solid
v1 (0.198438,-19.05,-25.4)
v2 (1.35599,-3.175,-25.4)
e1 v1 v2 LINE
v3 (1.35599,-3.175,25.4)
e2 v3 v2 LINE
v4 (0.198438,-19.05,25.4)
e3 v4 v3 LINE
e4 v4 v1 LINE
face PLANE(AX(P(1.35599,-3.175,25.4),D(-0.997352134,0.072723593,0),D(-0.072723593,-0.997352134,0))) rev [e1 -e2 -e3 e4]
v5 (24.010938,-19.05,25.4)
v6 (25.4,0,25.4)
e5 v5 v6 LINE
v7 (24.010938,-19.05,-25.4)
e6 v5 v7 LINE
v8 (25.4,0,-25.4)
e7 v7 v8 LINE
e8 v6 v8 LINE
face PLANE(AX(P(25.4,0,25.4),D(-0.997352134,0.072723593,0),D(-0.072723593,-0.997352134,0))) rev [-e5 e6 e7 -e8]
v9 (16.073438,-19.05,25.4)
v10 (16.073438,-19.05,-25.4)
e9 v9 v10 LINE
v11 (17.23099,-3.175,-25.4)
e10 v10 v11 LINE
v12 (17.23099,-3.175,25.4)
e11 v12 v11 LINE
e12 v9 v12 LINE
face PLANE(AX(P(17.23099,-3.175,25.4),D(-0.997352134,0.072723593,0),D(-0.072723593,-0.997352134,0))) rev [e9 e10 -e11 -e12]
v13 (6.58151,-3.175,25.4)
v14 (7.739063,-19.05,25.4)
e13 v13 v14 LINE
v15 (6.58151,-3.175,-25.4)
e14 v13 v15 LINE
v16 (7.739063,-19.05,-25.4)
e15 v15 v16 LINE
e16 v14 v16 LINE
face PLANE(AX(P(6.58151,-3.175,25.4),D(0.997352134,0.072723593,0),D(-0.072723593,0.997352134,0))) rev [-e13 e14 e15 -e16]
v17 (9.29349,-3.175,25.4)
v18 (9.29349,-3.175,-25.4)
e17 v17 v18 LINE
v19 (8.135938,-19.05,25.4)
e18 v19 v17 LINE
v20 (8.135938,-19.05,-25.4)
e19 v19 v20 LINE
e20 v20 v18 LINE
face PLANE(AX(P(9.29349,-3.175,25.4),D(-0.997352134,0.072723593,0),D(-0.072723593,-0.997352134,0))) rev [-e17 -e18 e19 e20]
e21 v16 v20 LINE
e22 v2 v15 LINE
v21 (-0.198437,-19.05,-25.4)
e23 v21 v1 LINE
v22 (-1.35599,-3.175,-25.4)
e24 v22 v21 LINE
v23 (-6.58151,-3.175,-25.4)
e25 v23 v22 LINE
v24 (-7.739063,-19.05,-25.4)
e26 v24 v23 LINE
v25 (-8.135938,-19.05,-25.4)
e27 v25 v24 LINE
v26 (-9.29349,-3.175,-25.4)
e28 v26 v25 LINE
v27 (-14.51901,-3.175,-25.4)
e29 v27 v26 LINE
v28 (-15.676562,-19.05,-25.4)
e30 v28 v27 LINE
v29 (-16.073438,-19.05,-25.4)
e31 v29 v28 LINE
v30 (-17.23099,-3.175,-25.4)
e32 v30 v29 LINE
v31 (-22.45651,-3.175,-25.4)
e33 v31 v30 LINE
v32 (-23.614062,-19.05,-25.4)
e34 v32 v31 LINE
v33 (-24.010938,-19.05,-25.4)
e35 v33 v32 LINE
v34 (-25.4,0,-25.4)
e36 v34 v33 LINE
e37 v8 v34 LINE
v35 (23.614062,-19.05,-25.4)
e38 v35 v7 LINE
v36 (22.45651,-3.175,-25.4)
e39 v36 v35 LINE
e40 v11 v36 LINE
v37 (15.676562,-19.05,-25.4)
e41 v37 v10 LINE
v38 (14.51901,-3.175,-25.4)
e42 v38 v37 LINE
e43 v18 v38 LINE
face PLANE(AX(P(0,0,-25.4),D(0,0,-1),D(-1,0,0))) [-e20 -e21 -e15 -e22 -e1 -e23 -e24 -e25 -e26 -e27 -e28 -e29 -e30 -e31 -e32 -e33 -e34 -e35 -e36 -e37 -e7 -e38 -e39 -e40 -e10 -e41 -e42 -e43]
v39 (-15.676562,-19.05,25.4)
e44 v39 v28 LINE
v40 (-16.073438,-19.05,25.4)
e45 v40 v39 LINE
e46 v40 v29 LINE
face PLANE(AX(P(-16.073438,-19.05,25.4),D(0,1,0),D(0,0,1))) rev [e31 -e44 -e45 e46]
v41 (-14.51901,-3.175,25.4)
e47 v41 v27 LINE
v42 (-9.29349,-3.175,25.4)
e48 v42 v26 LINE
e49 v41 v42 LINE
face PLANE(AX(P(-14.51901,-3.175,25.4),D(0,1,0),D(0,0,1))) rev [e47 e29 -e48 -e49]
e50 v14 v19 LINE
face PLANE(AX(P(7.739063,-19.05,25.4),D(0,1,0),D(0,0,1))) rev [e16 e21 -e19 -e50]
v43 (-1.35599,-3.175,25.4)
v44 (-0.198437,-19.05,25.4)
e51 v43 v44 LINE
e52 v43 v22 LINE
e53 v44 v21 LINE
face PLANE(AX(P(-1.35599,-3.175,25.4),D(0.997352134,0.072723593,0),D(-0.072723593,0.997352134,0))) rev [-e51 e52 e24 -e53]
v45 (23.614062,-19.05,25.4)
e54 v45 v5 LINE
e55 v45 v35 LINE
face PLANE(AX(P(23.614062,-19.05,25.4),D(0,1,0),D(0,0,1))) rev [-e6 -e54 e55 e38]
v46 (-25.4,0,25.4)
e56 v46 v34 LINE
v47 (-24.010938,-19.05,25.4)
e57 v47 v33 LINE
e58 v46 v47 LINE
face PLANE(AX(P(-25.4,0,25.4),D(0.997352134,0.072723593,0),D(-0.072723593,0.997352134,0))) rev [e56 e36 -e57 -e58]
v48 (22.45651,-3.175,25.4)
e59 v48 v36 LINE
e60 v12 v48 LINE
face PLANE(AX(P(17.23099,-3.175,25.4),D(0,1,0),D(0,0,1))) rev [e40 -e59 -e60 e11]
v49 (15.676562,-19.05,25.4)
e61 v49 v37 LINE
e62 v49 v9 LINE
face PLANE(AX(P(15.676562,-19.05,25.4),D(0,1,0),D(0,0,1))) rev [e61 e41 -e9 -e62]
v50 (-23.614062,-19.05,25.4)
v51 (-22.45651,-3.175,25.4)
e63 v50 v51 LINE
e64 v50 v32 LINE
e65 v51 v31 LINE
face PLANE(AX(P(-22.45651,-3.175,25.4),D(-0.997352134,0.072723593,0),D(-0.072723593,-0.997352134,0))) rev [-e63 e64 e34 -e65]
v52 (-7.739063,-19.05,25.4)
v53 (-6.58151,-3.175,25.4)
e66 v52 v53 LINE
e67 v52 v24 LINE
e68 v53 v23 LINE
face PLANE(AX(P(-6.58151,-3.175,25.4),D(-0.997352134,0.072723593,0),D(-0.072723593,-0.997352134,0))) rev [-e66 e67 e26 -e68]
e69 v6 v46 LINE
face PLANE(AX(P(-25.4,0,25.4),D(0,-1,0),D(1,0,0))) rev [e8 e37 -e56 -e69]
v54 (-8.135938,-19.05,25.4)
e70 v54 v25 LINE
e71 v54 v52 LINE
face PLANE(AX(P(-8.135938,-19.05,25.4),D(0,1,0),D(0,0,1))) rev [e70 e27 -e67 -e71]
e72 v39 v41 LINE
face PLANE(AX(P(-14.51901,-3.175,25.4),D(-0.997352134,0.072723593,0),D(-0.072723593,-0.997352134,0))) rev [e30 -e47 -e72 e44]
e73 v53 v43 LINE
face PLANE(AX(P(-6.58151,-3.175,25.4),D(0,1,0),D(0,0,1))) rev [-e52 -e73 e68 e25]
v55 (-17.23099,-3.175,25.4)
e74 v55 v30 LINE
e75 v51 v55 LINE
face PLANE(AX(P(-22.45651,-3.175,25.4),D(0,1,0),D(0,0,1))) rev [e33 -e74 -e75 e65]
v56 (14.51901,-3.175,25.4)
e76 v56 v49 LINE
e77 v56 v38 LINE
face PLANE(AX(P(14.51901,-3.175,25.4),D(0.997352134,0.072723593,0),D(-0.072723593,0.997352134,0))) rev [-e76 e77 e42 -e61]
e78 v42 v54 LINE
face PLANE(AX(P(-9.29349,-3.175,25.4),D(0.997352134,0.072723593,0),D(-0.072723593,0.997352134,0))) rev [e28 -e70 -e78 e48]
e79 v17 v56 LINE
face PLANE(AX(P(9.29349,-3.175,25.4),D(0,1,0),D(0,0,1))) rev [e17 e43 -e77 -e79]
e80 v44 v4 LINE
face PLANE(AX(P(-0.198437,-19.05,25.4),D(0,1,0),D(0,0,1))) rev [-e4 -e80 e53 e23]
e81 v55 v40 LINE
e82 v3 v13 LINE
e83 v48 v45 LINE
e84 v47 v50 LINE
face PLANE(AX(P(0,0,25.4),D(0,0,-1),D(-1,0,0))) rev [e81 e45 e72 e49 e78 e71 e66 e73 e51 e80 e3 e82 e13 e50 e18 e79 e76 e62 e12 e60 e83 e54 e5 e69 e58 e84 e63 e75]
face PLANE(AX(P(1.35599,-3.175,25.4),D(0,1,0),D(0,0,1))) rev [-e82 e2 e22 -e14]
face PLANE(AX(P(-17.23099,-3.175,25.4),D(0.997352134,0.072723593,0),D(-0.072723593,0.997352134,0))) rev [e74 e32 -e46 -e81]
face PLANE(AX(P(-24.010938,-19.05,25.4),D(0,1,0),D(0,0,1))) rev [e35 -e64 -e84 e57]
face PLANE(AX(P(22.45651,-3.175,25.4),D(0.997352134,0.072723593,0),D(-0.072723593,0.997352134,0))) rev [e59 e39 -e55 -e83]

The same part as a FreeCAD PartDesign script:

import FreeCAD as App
import Part
import Sketcher
Q = App.Units.Quantity

doc = App.newDocument("Part")
body = doc.addObject("PartDesign::Body", "Body")

# Sketch on XY plane
sketch1 = doc.addObject("Sketcher::SketchObject", "Sketch")
body.addObject(sketch1)
sketch1.AttachmentSupport = (doc.XY_Plane, [""])
sketch1.MapMode = "FlatFace"
sketch1.addGeometry([
    Part.LineSegment(App.Vector(-25.4, 0, 0), App.Vector(-24.01, -19.05, 0)),  # 0
    Part.LineSegment(App.Vector(-24.01, -19.05, 0), App.Vector(-23.61, -19.05, 0)),  # 1
    Part.LineSegment(App.Vector(-23.61, -19.05, 0), App.Vector(-22.46, -3.17, 0)),  # 2
    Part.LineSegment(App.Vector(-22.46, -3.17, 0), App.Vector(-17.23, -3.17, 0)),  # 3
    Part.LineSegment(App.Vector(-17.23, -3.17, 0), App.Vector(-16.07, -19.05, 0)),  # 4
    Part.LineSegment(App.Vector(-16.07, -19.05, 0), App.Vector(-15.68, -19.05, 0)),  # 5
    Part.LineSegment(App.Vector(-15.68, -19.05, 0), App.Vector(-14.52, -3.17, 0)),  # 6
    Part.LineSegment(App.Vector(-14.52, -3.17, 0), App.Vector(-9.29, -3.17, 0)),  # 7
    Part.LineSegment(App.Vector(-9.29, -3.17, 0), App.Vector(-8.14, -19.05, 0)),  # 8
    Part.LineSegment(App.Vector(-8.14, -19.05, 0), App.Vector(-7.74, -19.05, 0)),  # 9
    Part.LineSegment(App.Vector(-7.74, -19.05, 0), App.Vector(-6.58, -3.17, 0)),  # 10
    Part.LineSegment(App.Vector(-6.58, -3.17, 0), App.Vector(-1.36, -3.17, 0)),  # 11
    Part.LineSegment(App.Vector(-1.36, -3.17, 0), App.Vector(-0.2, -19.05, 0)),  # 12
    Part.LineSegment(App.Vector(-0.2, -19.05, 0), App.Vector(0.2, -19.05, 0)),  # 13
    Part.LineSegment(App.Vector(0.2, -19.05, 0), App.Vector(1.36, -3.17, 0)),  # 14
    Part.LineSegment(App.Vector(1.36, -3.17, 0), App.Vector(6.58, -3.17, 0)),  # 15
    Part.LineSegment(App.Vector(6.58, -3.17, 0), App.Vector(7.74, -19.05, 0)),  # 16
    Part.LineSegment(App.Vector(7.74, -19.05, 0), App.Vector(8.14, -19.05, 0)),  # 17
    Part.LineSegment(App.Vector(8.14, -19.05, 0), App.Vector(9.29, -3.17, 0)),  # 18
    Part.LineSegment(App.Vector(9.29, -3.17, 0), App.Vector(14.52, -3.17, 0)),  # 19
    Part.LineSegment(App.Vector(14.52, -3.17, 0), App.Vector(15.68, -19.05, 0)),  # 20
    Part.LineSegment(App.Vector(15.68, -19.05, 0), App.Vector(16.07, -19.05, 0)),  # 21
    Part.LineSegment(App.Vector(16.07, -19.05, 0), App.Vector(17.23, -3.17, 0)),  # 22
    Part.LineSegment(App.Vector(17.23, -3.17, 0), App.Vector(22.46, -3.17, 0)),  # 23
    Part.LineSegment(App.Vector(22.46, -3.17, 0), App.Vector(23.61, -19.05, 0)),  # 24
    Part.LineSegment(App.Vector(23.61, -19.05, 0), App.Vector(24.01, -19.05, 0)),  # 25
    Part.LineSegment(App.Vector(24.01, -19.05, 0), App.Vector(25.4, 0, 0)),  # 26
    Part.LineSegment(App.Vector(25.4, 0, 0), App.Vector(-25.4, 0, 0)),  # 27
], False)
sketch1.addConstraint([
    Sketcher.Constraint("Coincident", 0, 2, 1, 1),
    Sketcher.Constraint("Coincident", 1, 2, 2, 1),
    Sketcher.Constraint("Coincident", 2, 2, 3, 1),
    Sketcher.Constraint("Coincident", 3, 2, 4, 1),
    Sketcher.Constraint("Coincident", 4, 2, 5, 1),
    Sketcher.Constraint("Coincident", 5, 2, 6, 1),
    Sketcher.Constraint("Coincident", 6, 2, 7, 1),
    Sketcher.Constraint("Coincident", 7, 2, 8, 1),
    Sketcher.Constraint("Coincident", 8, 2, 9, 1),
    Sketcher.Constraint("Coincident", 9, 2, 10, 1),
    Sketcher.Constraint("Coincident", 10, 2, 11, 1),
    Sketcher.Constraint("Coincident", 11, 2, 12, 1),
    Sketcher.Constraint("Coincident", 12, 2, 13, 1),
    Sketcher.Constraint("Coincident", 13, 2, 14, 1),
    Sketcher.Constraint("Coincident", 14, 2, 15, 1),
    Sketcher.Constraint("Coincident", 15, 2, 16, 1),
    Sketcher.Constraint("Coincident", 16, 2, 17, 1),
    Sketcher.Constraint("Coincident", 17, 2, 18, 1),
    Sketcher.Constraint("Coincident", 18, 2, 19, 1),
    Sketcher.Constraint("Coincident", 19, 2, 20, 1),
    Sketcher.Constraint("Coincident", 20, 2, 21, 1),
    Sketcher.Constraint("Coincident", 21, 2, 22, 1),
    Sketcher.Constraint("Coincident", 22, 2, 23, 1),
    Sketcher.Constraint("Coincident", 23, 2, 24, 1),
    Sketcher.Constraint("Coincident", 24, 2, 25, 1),
    Sketcher.Constraint("Coincident", 25, 2, 26, 1),
    Sketcher.Constraint("Coincident", 26, 2, 27, 1),
    Sketcher.Constraint("Coincident", 27, 2, 0, 1),
    Sketcher.Constraint("Horizontal", 1),
    Sketcher.Constraint("Horizontal", 3),
    Sketcher.Constraint("Horizontal", 5),
    Sketcher.Constraint("Horizontal", 7),
    Sketcher.Constraint("Horizontal", 9),
    Sketcher.Constraint("Horizontal", 11),
    Sketcher.Constraint("Horizontal", 13),
    Sketcher.Constraint("Horizontal", 15),
    Sketcher.Constraint("Horizontal", 17),
    Sketcher.Constraint("Horizontal", 19),
    Sketcher.Constraint("Horizontal", 21),
    Sketcher.Constraint("Horizontal", 23),
    Sketcher.Constraint("Horizontal", 25),
    Sketcher.Constraint("Horizontal", 27),
    Sketcher.Constraint("Symmetric", 26, 2, 27, 2, -1, 1),
    Sketcher.Constraint("Symmetric", 11, 2, 14, 2, -2),
    Sketcher.Constraint("Symmetric", 9, 2, 16, 2, -2),
    Sketcher.Constraint("Symmetric", 7, 2, 18, 2, -2),
    Sketcher.Constraint("Symmetric", 5, 2, 20, 2, -2),
    Sketcher.Constraint("Symmetric", 3, 2, 22, 2, -2),
    Sketcher.Constraint("Symmetric", 1, 2, 24, 2, -2),
    Sketcher.Constraint("Parallel", 0, 4),
    Sketcher.Constraint("Parallel", 2, 6),
    Sketcher.Constraint("Parallel", 4, 8),
    Sketcher.Constraint("Parallel", 6, 10),
    Sketcher.Constraint("Parallel", 8, 12),
    Sketcher.Constraint("Parallel", 10, 14),
    Sketcher.Constraint("Parallel", 12, 16),
    Sketcher.Constraint("Parallel", 14, 18),
    Sketcher.Constraint("Parallel", 16, 20),
    Sketcher.Constraint("Parallel", 18, 22),
    Sketcher.Constraint("Parallel", 20, 24),
    Sketcher.Constraint("Parallel", 22, 26),
    Sketcher.Constraint("Horizontal", 1, 2, 4, 2),
    Sketcher.Constraint("Horizontal", 3, 2, 6, 2),
    Sketcher.Constraint("Horizontal", 5, 2, 8, 2),
    Sketcher.Constraint("Horizontal", 7, 2, 10, 2),
    Sketcher.Constraint("Horizontal", 9, 2, 12, 2),
    Sketcher.Constraint("Equal", 1, 5),
    Sketcher.Constraint("Equal", 3, 7),
    Sketcher.Constraint("Equal", 5, 9),
    Sketcher.Constraint("Equal", 7, 11),
    Sketcher.Constraint("Equal", 9, 13),
    Sketcher.Constraint("Equal", 11, 15),
    Sketcher.Constraint("DistanceX", 27, 2, 27, 1, Q("2 in")),
    Sketcher.Constraint("DistanceX", 1, 1, 1, 2, Q("0.015625 in")),
    Sketcher.Constraint("DistanceY", 0, 2, -1, 1, Q("0.75 in")),
    Sketcher.Constraint("DistanceY", 2, 2, -1, 1, Q("0.125 in")),
    Sketcher.Constraint("DistanceX", 1, 2, 4, 2, Q("0.296875 in")),
])
pad1 = doc.addObject("PartDesign::Pad", "Pad")
body.addObject(pad1)
pad1.Profile = sketch1
pad1.Length = Q("2 in")
pad1.Midplane = True

doc.recompute()
